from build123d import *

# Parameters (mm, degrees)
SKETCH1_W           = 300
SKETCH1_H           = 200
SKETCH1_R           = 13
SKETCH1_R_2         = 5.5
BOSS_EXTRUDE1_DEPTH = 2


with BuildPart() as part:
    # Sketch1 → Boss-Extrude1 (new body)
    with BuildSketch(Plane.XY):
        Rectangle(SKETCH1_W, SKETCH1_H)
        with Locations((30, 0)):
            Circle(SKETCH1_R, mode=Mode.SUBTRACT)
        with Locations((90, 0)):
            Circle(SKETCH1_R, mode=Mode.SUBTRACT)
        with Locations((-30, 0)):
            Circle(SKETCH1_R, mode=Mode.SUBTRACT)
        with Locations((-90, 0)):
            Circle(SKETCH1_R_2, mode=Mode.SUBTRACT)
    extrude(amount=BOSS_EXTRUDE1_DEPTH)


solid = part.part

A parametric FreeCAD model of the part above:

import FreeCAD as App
import Part
import Sketcher
from FreeCAD import Vector
Q = App.Units.Quantity


def add_polygon(sketch, points):
    """Adds a closed chain of lines whose ends are joined by coincident constraints."""
    first, n = sketch.GeometryCount, len(points)
    for a, b in zip(points, points[1:] + points[:1]):
        sketch.addGeometry(Part.LineSegment(App.Vector(*a, 0), App.Vector(*b, 0)), False)
    for i in range(n):
        sketch.addConstraint(Sketcher.Constraint("Coincident", first + i, 2, first + (i + 1) % n, 1))

doc = App.newDocument("Part")
body = doc.addObject("PartDesign::Body", "Body")

# Sketch on XY plane
sketch1 = body.newObject("Sketcher::SketchObject", "Sketch")
sketch1.AttachmentSupport = (doc.getObject("XY_Plane"), [""])
sketch1.MapMode = "FlatFace"
add_polygon(sketch1, [(-150, 100), (-150, -100), (150, -100), (150, 100)])  # lines 0-3
sketch1.addGeometry(Part.Circle(Vector(-90, 0, 0), Vector(0, 0, 1), 5.5), False)  # 4
sketch1.addGeometry(Part.Circle(Vector(-30, 0, 0), Vector(0, 0, 1), 13), False)  # 5
sketch1.addGeometry(Part.Circle(Vector(30, 0, 0), Vector(0, 0, 1), 13), False)  # 6
sketch1.addGeometry(Part.Circle(Vector(90, 0, 0), Vector(0, 0, 1), 13), False)  # 7
sketch1.addConstraint([
    Sketcher.Constraint("Vertical", 0),
    Sketcher.Constraint("Horizontal", 1),
    Sketcher.Constraint("Vertical", 2),
    Sketcher.Constraint("Horizontal", 3),
    Sketcher.Constraint("Equal", 5, 6),
    Sketcher.Constraint("Equal", 6, 7),
    Sketcher.Constraint("Symmetric", 5, 3, 6, 3, -1, 1),
    Sketcher.Constraint("Symmetric", 4, 3, 7, 3, -1, 1),
    Sketcher.Constraint("Symmetric", 0, 2, 2, 2, -1, 1),
    Sketcher.Constraint("PointOnObject", 4, 3, -1),
    Sketcher.Constraint("PointOnObject", 5, 3, -1),
    Sketcher.Constraint("Diameter", 4, Q("11 mm")),
    Sketcher.Constraint("Diameter", 5, Q("26 mm")),
    Sketcher.Constraint("DistanceX", 1, 1, 1, 2, Q("300 mm")),
    Sketcher.Constraint("DistanceY", 0, 2, 0, 1, Q("200 mm")),
    Sketcher.Constraint("DistanceX", 4, 3, -1, 1, Q("90 mm")),
    Sketcher.Constraint("DistanceX", 5, 3, -1, 1, Q("30 mm")),
])
pad1 = body.newObject("PartDesign::Pad", "Pad")
pad1.Profile = sketch1
pad1.Length = 2

doc.recompute()
